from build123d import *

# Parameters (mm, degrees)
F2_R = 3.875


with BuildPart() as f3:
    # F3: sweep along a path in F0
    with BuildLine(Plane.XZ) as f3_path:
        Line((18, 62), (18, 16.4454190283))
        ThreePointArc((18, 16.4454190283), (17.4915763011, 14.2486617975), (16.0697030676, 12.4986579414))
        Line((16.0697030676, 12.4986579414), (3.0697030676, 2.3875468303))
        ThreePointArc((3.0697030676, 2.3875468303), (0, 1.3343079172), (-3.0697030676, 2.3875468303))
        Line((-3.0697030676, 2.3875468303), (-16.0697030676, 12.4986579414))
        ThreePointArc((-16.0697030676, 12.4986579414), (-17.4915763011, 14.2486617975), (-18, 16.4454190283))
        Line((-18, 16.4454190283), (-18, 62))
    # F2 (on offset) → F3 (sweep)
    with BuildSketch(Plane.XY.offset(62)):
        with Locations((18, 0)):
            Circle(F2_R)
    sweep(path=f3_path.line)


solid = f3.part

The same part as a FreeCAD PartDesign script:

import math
import FreeCAD as App
import Part
import Sketcher
Q = App.Units.Quantity

doc = App.newDocument("Part")
params = doc.addObject("Spreadsheet::Sheet", "Params")
for row, (alias, value) in enumerate([
    ("sketch1_diameter", "7.75 mm"),
    ("sketch2_radius", "5 mm"),
], start=1):
    params.set(f"A{row}", alias)
    params.set(f"B{row}", "=" + value)
    params.setAlias(f"B{row}", alias)

body = doc.addObject("PartDesign::Body", "Body")

sketch1 = body.newObject("Sketcher::SketchObject", "Sketch")
sketch1.AttachmentSupport = (doc.getObject("XY_Plane"), [""])
sketch1.MapMode = "FlatFace"
sketch1.AttachmentOffset = App.Placement(App.Vector(0, 0, 62), App.Rotation())
sketch1.addGeometry(Part.Circle(App.Vector(18, 0, 0), App.Vector(0, 0, 1), 3.875), False)
sketch1.addConstraint([
    Sketcher.Constraint("PointOnObject", 0, 3, -1),
    Sketcher.Constraint("Diameter", 0, Q("7.75 mm")),
    Sketcher.Constraint("DistanceX", -1, 1, 0, 3, Q("18 mm")),
])
sketch1.setExpression("Constraints[1]", "Params.sketch1_diameter")

sketch2 = body.newObject("Sketcher::SketchObject", "Sketch001")
sketch2.AttachmentSupport = (doc.getObject("XZ_Plane"), [""])
sketch2.MapMode = "FlatFace"
sketch2.addGeometry([
    Part.LineSegment(App.Vector(18, 62, 0), App.Vector(18, 16.445419, 0)),
    Part.ArcOfCircle(Part.Circle(App.Vector(13, 16.445419, 0), App.Vector(0, 0, 1), 5), math.radians(-52.125016), math.radians(0)),
    Part.LineSegment(App.Vector(16.069703, 12.498658, 0), App.Vector(3.069703, 2.387547, 0)),
    Part.ArcOfCircle(Part.Circle(App.Vector(0, 6.334308, 0), App.Vector(0, 0, 1), 5), math.radians(-127.874984), math.radians(-52.125016)),
    Part.LineSegment(App.Vector(-3.069703, 2.387547, 0), App.Vector(-16.069703, 12.498658, 0)),
    Part.ArcOfCircle(Part.Circle(App.Vector(-13, 16.445419, 0), App.Vector(0, 0, 1), 5), math.radians(180), math.radians(232.125016)),
    Part.LineSegment(App.Vector(-18, 16.445419, 0), App.Vector(-18, 62, 0)),
], False)
sketch2.addConstraint([
    Sketcher.Constraint("Tangent", 0, 2, 1, 2),
    Sketcher.Constraint("Tangent", 1, 1, 2, 1),
    Sketcher.Constraint("Tangent", 2, 2, 3, 2),
    Sketcher.Constraint("Tangent", 3, 1, 4, 1),
    Sketcher.Constraint("Tangent", 4, 2, 5, 2),
    Sketcher.Constraint("Tangent", 5, 1, 6, 1),
    Sketcher.Constraint("Vertical", 0),
    Sketcher.Constraint("Vertical", 6),
    Sketcher.Constraint("Equal", 1, 3),
    Sketcher.Constraint("Equal", 3, 5),
    Sketcher.Constraint("Symmetric", 1, 3, 5, 3, -2),
    Sketcher.Constraint("PointOnObject", 3, 3, -2),
    Sketcher.Constraint("Horizontal", 0, 1, 6, 2),
    Sketcher.Constraint("Radius", 1, Q("5 mm")),
    Sketcher.Constraint("DistanceX", -1, 1, 1, 3, Q("13 mm")),
    Sketcher.Constraint("DistanceY", -1, 1, 0, 1, Q("62 mm")),
    Sketcher.Constraint("Distance", 2, Q("16.469201 mm")),
    Sketcher.Constraint("DistanceY", 0, 2, 0, 1, Q("45.554581 mm")),
])
sketch2.setExpression("Constraints[13]", "Params.sketch2_radius")
doc.recompute()

additivepipe = body.newObject("PartDesign::AdditivePipe", "AdditivePipe")
additivepipe.Profile = sketch1
additivepipe.Spine = (sketch2, ["Edge1", "Edge2", "Edge3", "Edge4", "Edge5", "Edge6", "Edge7"])

doc.recompute()
